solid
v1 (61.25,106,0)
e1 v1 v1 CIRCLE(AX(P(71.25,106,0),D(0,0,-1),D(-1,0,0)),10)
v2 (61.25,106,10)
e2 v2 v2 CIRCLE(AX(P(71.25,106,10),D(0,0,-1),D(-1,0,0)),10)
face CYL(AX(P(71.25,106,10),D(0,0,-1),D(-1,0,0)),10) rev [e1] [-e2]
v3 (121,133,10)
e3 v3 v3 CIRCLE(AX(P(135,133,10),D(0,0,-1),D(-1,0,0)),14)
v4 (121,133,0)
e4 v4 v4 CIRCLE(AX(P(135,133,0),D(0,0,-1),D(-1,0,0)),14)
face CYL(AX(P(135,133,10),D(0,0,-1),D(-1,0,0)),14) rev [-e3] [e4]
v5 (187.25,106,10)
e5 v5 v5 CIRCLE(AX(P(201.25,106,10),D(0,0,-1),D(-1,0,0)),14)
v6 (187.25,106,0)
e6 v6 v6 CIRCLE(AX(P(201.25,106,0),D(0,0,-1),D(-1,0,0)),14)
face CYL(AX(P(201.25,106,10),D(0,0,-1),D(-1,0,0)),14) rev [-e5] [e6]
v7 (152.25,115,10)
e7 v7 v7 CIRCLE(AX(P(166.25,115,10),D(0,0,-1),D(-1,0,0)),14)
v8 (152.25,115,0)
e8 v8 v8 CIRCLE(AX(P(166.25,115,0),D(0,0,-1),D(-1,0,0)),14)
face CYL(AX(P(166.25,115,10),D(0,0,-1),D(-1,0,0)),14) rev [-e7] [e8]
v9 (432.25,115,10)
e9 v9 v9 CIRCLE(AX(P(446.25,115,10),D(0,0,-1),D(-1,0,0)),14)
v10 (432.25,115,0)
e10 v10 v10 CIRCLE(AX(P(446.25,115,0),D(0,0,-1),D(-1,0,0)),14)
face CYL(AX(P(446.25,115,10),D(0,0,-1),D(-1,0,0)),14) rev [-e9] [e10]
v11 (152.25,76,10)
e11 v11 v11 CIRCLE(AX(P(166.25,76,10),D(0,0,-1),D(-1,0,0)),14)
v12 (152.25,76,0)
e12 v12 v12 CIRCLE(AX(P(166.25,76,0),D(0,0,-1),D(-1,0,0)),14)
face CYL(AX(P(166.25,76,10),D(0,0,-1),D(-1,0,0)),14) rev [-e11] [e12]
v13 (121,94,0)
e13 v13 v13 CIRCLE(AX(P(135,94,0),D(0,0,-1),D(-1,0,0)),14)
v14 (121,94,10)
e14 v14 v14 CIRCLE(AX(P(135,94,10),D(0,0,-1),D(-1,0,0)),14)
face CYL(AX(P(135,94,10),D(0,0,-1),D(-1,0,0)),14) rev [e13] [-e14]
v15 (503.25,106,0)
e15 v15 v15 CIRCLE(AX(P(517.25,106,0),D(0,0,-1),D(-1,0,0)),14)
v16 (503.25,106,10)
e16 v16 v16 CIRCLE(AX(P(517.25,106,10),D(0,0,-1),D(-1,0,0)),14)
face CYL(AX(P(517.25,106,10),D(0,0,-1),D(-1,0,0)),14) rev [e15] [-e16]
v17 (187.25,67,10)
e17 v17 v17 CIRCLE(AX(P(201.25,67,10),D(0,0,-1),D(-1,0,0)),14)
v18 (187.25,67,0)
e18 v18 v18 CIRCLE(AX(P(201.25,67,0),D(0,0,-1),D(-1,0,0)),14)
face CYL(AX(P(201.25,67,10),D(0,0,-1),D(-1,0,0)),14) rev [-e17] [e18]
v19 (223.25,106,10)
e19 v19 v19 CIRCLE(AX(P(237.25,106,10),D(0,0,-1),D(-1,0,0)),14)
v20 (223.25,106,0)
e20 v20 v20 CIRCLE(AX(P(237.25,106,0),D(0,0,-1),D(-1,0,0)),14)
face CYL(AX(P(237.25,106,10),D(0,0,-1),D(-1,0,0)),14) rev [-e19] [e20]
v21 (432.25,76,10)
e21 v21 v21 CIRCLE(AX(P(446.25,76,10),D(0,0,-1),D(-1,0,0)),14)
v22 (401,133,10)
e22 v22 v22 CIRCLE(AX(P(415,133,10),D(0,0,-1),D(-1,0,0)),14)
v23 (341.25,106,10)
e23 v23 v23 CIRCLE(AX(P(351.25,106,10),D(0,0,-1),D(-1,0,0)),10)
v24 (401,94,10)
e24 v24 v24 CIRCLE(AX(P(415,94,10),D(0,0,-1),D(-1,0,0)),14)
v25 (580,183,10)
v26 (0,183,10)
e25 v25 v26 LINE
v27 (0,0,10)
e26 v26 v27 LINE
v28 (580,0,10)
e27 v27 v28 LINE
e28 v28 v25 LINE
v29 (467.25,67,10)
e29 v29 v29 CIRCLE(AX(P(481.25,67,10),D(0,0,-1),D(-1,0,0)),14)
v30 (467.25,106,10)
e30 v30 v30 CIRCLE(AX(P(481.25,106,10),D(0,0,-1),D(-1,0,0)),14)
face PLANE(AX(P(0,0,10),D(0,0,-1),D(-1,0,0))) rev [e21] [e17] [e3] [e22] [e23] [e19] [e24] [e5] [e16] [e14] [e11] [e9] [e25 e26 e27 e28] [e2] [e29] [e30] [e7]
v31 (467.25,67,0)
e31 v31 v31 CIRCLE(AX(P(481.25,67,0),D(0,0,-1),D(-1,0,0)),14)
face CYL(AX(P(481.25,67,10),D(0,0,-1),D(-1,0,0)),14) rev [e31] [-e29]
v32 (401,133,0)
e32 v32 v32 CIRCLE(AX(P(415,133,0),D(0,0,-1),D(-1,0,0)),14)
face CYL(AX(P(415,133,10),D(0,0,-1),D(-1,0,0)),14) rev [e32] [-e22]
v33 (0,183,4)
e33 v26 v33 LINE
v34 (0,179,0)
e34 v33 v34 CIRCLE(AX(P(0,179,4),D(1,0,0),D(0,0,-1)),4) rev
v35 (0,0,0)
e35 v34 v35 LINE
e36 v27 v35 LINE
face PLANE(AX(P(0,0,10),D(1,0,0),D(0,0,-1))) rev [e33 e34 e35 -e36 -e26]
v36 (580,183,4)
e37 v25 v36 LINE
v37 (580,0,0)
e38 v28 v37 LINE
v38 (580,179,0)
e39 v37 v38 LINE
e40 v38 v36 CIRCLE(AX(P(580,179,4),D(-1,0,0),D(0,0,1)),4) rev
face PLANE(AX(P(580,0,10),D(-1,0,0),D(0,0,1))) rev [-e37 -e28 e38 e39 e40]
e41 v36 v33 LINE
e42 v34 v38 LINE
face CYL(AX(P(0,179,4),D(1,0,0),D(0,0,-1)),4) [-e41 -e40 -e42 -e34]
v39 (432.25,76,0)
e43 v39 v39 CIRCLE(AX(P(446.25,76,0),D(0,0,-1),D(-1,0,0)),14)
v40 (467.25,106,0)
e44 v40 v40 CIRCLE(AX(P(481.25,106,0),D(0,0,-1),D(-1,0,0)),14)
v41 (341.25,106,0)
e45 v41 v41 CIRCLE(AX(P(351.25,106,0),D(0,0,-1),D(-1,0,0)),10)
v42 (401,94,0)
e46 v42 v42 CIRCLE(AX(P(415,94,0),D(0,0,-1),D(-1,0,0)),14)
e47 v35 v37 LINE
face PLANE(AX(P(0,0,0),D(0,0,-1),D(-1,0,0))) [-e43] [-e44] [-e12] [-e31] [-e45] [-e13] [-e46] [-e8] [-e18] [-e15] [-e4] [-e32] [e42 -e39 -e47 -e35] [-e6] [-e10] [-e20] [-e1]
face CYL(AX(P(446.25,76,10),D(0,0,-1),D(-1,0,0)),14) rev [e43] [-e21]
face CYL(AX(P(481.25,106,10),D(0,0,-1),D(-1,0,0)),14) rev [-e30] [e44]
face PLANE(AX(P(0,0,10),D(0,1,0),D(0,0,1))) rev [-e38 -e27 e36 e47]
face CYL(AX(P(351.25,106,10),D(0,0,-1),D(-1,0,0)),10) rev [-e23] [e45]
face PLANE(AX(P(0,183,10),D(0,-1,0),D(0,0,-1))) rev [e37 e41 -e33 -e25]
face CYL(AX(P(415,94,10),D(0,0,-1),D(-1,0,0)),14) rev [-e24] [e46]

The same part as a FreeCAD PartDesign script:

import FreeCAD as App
import Part
import Sketcher
Q = App.Units.Quantity


def edges_at(feature, points):
    """Names of the edges that pass closest to the given points."""
    edges = feature.Shape.Edges
    near = lambda p: min(range(len(edges)), key=lambda i: edges[i].distToShape(Part.Vertex(*p))[0])
    return sorted({f"Edge{near(p) + 1}" for p in points})


def add_polygon(sketch, points):
    """Adds a closed chain of lines whose ends are joined by coincident constraints."""
    first, n = sketch.GeometryCount, len(points)
    for a, b in zip(points, points[1:] + points[:1]):
        sketch.addGeometry(Part.LineSegment(App.Vector(*a, 0), App.Vector(*b, 0)), False)
    for i in range(n):
        sketch.addConstraint(Sketcher.Constraint("Coincident", first + i, 2, first + (i + 1) % n, 1))

doc = App.newDocument("Part")
body = doc.addObject("PartDesign::Body", "Body")

# Sketch on XY plane
sketch1 = body.newObject("Sketcher::SketchObject", "Sketch")
sketch1.AttachmentSupport = (doc.getObject("XY_Plane"), [""])
sketch1.MapMode = "FlatFace"
add_polygon(sketch1, [(0, 183), (0, 0), (580, 0), (580, 183)])  # lines 0-3
sketch1.addConstraint([
    Sketcher.Constraint("Vertical", 0),
    Sketcher.Constraint("Horizontal", 1),
    Sketcher.Constraint("Vertical", 2),
    Sketcher.Constraint("Horizontal", 3),
    Sketcher.Constraint("Coincident", 0, 2, -1, 1),
    Sketcher.Constraint("DistanceX", 1, 1, 1, 2, Q("580 mm")),
    Sketcher.Constraint("DistanceY", 0, 2, 0, 1, Q("183 mm")),
])
pad1 = body.newObject("PartDesign::Pad", "Pad")
pad1.Profile = sketch1
pad1.Length = 10

# Sketch on XY plane
sketch2 = body.newObject("Sketcher::SketchObject", "Sketch001")
sketch2.AttachmentSupport = (doc.getObject("XY_Plane"), [""])
sketch2.MapMode = "FlatFace"
sketch2.addGeometry([
    Part.Circle(App.Vector(201, 67, 0), App.Vector(0, 0, 1), 14),  # 0
    Part.Circle(App.Vector(71, 106, 0), App.Vector(0, 0, 1), 10),  # 1
    Part.Circle(App.Vector(166, 76, 0), App.Vector(0, 0, 1), 14),  # 2
    Part.Circle(App.Vector(135, 94, 0), App.Vector(0, 0, 1), 14),  # 3
    Part.Circle(App.Vector(237, 106, 0), App.Vector(0, 0, 1), 14),  # 4
    Part.Circle(App.Vector(201, 106, 0), App.Vector(0, 0, 1), 14),  # 5
    Part.Circle(App.Vector(166, 115, 0), App.Vector(0, 0, 1), 14),  # 6
    Part.Circle(App.Vector(135, 133, 0), App.Vector(0, 0, 1), 14),  # 7
], False)
sketch2.addConstraint([
    Sketcher.Constraint("Equal", 0, 2),
    Sketcher.Constraint("Equal", 2, 3),
    Sketcher.Constraint("Equal", 3, 4),
    Sketcher.Constraint("Equal", 4, 5),
    Sketcher.Constraint("Equal", 5, 6),
    Sketcher.Constraint("Equal", 6, 7),
    Sketcher.Constraint("Horizontal", 1, 3, 4, 3),
    Sketcher.Constraint("Horizontal", 4, 3, 5, 3),
    Sketcher.Constraint("Vertical", 0, 3, 5, 3),
    Sketcher.Constraint("Vertical", 2, 3, 6, 3),
    Sketcher.Constraint("Vertical", 3, 3, 7, 3),
    Sketcher.Constraint("Diameter", 0, Q("28 mm")),
    Sketcher.Constraint("Diameter", 1, Q("20 mm")),
    Sketcher.Constraint("DistanceY", -1, 1, 0, 3, Q("67 mm")),
    Sketcher.Constraint("DistanceY", -1, 1, 1, 3, Q("106 mm")),
    Sketcher.Constraint("DistanceY", -1, 1, 2, 3, Q("76 mm")),
    Sketcher.Constraint("DistanceX", -1, 1, 3, 3, Q("135 mm")),
    Sketcher.Constraint("DistanceY", -1, 1, 3, 3, Q("94 mm")),
    Sketcher.Constraint("DistanceY", -1, 1, 6, 3, Q("115 mm")),
    Sketcher.Constraint("DistanceY", -1, 1, 7, 3, Q("133 mm")),
    Sketcher.Constraint("DistanceX", 1, 3, 0, 3, Q("130 mm")),
    Sketcher.Constraint("DistanceX", 2, 3, 0, 3, Q("35 mm")),
    Sketcher.Constraint("DistanceX", 0, 3, 4, 3, Q("36 mm")),
    Sketcher.Constraint("DistanceX", -1, 1, 0, 3, Q("201.25 mm")),
])
pocket1 = body.newObject("PartDesign::Pocket", "Pocket")
pocket1.Profile = sketch2
pocket1.Length = 10
pocket1.Reversed = True
doc.recompute()

linearpattern = body.newObject("PartDesign::LinearPattern", "LinearPattern")
linearpattern.Originals = [pocket1]
linearpattern.Direction = (doc.getObject("X_Axis"), [""])
linearpattern.Mode = "offset"
linearpattern.Offset = 280
linearpattern.Occurrences = 2
body.Tip = linearpattern
doc.recompute()

fillet = body.newObject("PartDesign::Fillet", "Fillet")
fillet.Base = (linearpattern, edges_at(linearpattern, [(290, 183, 0)]))
fillet.Radius = 4

doc.recompute()
